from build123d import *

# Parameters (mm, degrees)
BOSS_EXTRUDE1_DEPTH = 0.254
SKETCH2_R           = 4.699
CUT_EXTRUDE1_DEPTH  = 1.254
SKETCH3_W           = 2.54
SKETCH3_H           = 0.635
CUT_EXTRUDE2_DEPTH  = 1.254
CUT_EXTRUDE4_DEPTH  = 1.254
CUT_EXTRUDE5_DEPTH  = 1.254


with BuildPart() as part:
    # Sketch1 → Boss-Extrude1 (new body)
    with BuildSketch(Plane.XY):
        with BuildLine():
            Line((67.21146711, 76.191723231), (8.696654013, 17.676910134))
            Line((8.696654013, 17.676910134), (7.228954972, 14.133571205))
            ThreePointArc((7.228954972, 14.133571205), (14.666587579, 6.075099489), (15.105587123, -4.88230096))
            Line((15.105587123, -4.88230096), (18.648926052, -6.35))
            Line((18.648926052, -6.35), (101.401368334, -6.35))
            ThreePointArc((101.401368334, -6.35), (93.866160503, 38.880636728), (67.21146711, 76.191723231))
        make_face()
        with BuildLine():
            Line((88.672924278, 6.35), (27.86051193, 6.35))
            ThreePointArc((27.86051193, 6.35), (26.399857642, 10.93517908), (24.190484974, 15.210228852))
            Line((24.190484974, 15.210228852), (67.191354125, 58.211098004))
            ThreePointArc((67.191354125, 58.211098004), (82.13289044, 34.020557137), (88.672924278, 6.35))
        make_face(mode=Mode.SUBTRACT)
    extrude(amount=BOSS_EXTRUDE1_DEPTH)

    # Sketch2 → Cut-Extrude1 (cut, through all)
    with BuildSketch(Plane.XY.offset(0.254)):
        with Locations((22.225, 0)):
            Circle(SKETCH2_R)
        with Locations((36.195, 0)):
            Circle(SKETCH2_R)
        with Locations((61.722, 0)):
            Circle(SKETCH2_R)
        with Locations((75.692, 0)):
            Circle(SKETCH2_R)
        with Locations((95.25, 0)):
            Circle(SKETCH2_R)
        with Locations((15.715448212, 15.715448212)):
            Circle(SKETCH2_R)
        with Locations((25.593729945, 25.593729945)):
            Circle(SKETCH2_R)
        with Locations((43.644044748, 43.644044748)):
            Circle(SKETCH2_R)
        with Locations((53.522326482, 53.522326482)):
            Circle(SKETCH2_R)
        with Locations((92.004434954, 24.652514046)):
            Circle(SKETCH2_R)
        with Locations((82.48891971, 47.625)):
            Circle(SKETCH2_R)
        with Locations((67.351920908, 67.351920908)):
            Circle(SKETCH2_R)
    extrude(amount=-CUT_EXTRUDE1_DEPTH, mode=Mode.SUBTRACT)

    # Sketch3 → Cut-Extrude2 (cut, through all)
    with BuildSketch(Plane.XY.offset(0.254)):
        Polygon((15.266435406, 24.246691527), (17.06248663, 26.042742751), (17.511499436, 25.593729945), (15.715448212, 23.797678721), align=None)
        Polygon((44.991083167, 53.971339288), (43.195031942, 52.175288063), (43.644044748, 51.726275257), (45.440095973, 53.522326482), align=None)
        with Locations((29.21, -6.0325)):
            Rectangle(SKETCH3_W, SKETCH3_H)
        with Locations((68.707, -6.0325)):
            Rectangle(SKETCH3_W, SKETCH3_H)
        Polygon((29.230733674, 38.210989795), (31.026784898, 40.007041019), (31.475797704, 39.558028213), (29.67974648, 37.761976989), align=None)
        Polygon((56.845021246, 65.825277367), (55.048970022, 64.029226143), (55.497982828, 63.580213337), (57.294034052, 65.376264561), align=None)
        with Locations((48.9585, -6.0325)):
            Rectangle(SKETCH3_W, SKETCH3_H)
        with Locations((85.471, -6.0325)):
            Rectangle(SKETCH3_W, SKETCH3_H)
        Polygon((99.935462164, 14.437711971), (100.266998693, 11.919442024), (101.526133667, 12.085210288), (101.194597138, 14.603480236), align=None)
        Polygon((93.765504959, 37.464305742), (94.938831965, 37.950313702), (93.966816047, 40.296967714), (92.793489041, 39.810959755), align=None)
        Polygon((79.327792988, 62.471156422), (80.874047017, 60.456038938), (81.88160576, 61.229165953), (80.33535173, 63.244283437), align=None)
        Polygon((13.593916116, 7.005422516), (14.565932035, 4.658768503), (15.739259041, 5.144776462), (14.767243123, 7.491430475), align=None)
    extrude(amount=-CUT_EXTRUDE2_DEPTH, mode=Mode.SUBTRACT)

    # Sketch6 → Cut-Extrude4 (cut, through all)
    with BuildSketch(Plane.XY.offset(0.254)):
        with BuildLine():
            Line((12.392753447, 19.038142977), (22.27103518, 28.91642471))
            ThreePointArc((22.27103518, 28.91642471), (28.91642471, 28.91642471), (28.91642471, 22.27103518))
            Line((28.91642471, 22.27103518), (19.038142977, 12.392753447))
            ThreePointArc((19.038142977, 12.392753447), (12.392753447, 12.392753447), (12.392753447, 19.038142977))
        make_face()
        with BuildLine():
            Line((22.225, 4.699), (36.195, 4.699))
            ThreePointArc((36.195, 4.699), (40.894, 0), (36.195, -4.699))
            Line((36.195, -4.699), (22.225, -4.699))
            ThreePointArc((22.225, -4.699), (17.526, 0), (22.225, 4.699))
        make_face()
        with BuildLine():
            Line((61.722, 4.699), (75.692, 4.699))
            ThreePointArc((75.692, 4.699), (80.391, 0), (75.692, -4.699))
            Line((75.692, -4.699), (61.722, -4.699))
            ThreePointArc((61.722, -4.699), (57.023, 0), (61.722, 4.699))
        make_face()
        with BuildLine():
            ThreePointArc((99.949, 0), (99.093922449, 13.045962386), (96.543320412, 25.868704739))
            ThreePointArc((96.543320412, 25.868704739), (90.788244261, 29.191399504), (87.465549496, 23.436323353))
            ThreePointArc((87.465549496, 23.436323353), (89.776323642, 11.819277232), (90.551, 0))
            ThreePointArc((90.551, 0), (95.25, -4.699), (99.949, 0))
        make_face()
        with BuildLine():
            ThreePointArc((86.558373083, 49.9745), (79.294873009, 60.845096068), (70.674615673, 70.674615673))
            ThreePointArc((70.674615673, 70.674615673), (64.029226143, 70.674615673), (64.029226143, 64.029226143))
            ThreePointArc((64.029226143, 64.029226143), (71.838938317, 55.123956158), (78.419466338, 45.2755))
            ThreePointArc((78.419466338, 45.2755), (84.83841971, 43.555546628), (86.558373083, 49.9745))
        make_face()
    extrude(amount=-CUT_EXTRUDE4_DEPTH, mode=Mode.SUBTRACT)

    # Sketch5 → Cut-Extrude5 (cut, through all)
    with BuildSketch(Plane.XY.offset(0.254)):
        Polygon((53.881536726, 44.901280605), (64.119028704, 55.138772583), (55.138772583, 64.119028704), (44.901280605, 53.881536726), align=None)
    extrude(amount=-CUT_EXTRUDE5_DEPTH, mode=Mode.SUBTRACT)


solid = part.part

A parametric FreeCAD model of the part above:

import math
import FreeCAD as App
import Part
import Sketcher
from FreeCAD import Vector
Q = App.Units.Quantity

doc = App.newDocument("Part")
params = doc.addObject("Spreadsheet::Sheet", "Params")
for row, (alias, value) in enumerate([
    ("sketch1_radius", "4 in"),
    ("sketch1_radius2", "3.5 in"),
    ("sketch1_radius3", "0.625 in"),
    ("sketch1_radius4", "1.125 in"),
    ("pad1_length", "0.01 in"),
    ("sketch2_diameter", "0.37 in"),
    ("sketch3_width", "0.1 in"),
    ("sketch3_length", "0.1 in"),
    ("sketch3_length2", "0.05 in"),
    ("sketch3_height", "0.025 in"),
    ("sketch3_length3", "0.025 in"),
    ("sketch4_radius", "0.185 in"),
    ("sketch4_radius2", "3.935 in"),
    ("sketch4_width", "0.55 in"),
    ("sketch4_length", "0.55 in"),
    ("sketch5_length", "0.5 in"),
    ("sketch5_length2", "0.57 in"),
], start=1):
    params.set(f"A{row}", alias)
    params.set(f"B{row}", "=" + value)
    params.setAlias(f"B{row}", alias)

body = doc.addObject("PartDesign::Body", "Body")

sketch1 = body.newObject("Sketcher::SketchObject", "Sketch")
sketch1.AttachmentSupport = (doc.getObject("XY_Plane"), [""])
sketch1.MapMode = "FlatFace"
sketch1.addGeometry([
    Part.LineSegment(Vector(67.2, 76.2, 0), Vector(8.7, 17.7, 0)),
    Part.LineSegment(Vector(8.7, 17.7, 0), Vector(7.2, 14.1, 0)),
    Part.ArcOfCircle(Part.Circle(Vector(0, 0, 0), Vector(0, 0, 1), 15.9), math.radians(-18), math.radians(63)),
    Part.LineSegment(Vector(15.1, -4.9, 0), Vector(18.6, -6.3, 0)),
    Part.LineSegment(Vector(18.6, -6.3, 0), Vector(101.4, -6.3, 0)),
    Part.ArcOfCircle(Part.Circle(Vector(0, 0, 0), Vector(0, 0, 1), 101.6), math.radians(-4), math.radians(49)),
    Part.ArcOfCircle(Part.Circle(Vector(0, 0, 0), Vector(0, 0, 1), 88.9), math.radians(4), math.radians(41)),
    Part.LineSegment(Vector(88.7, 6.3, 0), Vector(27.9, 6.3, 0)),
    Part.ArcOfCircle(Part.Circle(Vector(0, 0, 0), Vector(0, 0, 1), 28.6), math.radians(12.84), math.radians(32.16)),
    Part.LineSegment(Vector(24.2, 15.2, 0), Vector(67.2, 58.2, 0)),
], False)
sketch1.addConstraint([
    Sketcher.Constraint("Coincident", 0, 2, 1, 1),
    Sketcher.Constraint("Coincident", 1, 2, 2, 2),
    Sketcher.Constraint("Coincident", 2, 1, 3, 1),
    Sketcher.Constraint("Coincident", 3, 2, 4, 1),
    Sketcher.Constraint("Coincident", 4, 2, 5, 1),
    Sketcher.Constraint("Coincident", 5, 2, 0, 1),
    Sketcher.Constraint("Coincident", 6, 1, 7, 1),
    Sketcher.Constraint("Coincident", 7, 2, 8, 1),
    Sketcher.Constraint("Coincident", 8, 2, 9, 1),
    Sketcher.Constraint("Coincident", 9, 2, 6, 2),
    Sketcher.Constraint("Horizontal", 4),
    Sketcher.Constraint("Horizontal", 7),
    Sketcher.Constraint("Coincident", 2, 3, -1, 1),
    Sketcher.Constraint("Coincident", 5, 3, -1, 1),
    Sketcher.Constraint("Coincident", 6, 3, -1, 1),
    Sketcher.Constraint("Coincident", 8, 3, -1, 1),
    Sketcher.Constraint("Perpendicular", 1, 3),
    Sketcher.Constraint("Parallel", 0, 9),
    Sketcher.Constraint("Equal", 1, 3),
    Sketcher.Constraint("Radius", 5, Q("4 in")),
    Sketcher.Constraint("Radius", 6, Q("3.5 in")),
    Sketcher.Constraint("Angle", 0, Q("-135 deg")),
    Sketcher.Constraint("Radius", 2, Q("0.625 in")),
    Sketcher.Constraint("Radius", 8, Q("1.125 in")),
    Sketcher.Constraint("Angle", 1, Q("-112.5 deg")),
    Sketcher.Constraint("DistanceY", 4, 2, 6, 1, Q("0.5 in")),
    Sketcher.Constraint("DistanceY", 3, 2, -1, 1, Q("0.25 in")),
    Sketcher.Constraint("DistanceY", 2, 1, -1, 1, Q("4.882301 mm")),
    Sketcher.Constraint("DistanceY", -1, 1, 9, 2, Q("58.211098 mm")),
    Sketcher.Constraint("DistanceX", 5, 2, 4, 2, Q("34.189901 mm")),
])
sketch1.setExpression("Constraints[19]", "Params.sketch1_radius")
sketch1.setExpression("Constraints[20]", "Params.sketch1_radius2")
sketch1.setExpression("Constraints[22]", "Params.sketch1_radius3")
sketch1.setExpression("Constraints[23]", "Params.sketch1_radius4")
pad1 = body.newObject("PartDesign::Pad", "Pad")
pad1.Profile = sketch1
pad1.setExpression("Length", "Params.pad1_length")

sketch2 = body.newObject("Sketcher::SketchObject", "Sketch001")
sketch2.AttachmentSupport = (doc.getObject("XY_Plane"), [""])
sketch2.MapMode = "FlatFace"
sketch2.AttachmentOffset = App.Placement(Vector(0, 0, 0.01 * 25.4), App.Rotation())
sketch2.addGeometry([
    Part.Circle(Vector(22.2, 0, 0), Vector(0, 0, 1), 4.7),
    Part.Circle(Vector(36.2, 0, 0), Vector(0, 0, 1), 4.7),
    Part.Circle(Vector(61.7, 0, 0), Vector(0, 0, 1), 4.7),
    Part.Circle(Vector(75.7, 0, 0), Vector(0, 0, 1), 4.7),
    Part.Circle(Vector(95.2, 0, 0), Vector(0, 0, 1), 4.7),
    Part.Circle(Vector(15.7, 15.7, 0), Vector(0, 0, 1), 4.7),
    Part.Circle(Vector(25.6, 25.6, 0), Vector(0, 0, 1), 4.7),
    Part.Circle(Vector(43.6, 43.6, 0), Vector(0, 0, 1), 4.7),
    Part.Circle(Vector(53.5, 53.5, 0), Vector(0, 0, 1), 4.7),
    Part.Circle(Vector(92, 24.7, 0), Vector(0, 0, 1), 4.7),
    Part.Circle(Vector(82.5, 47.6, 0), Vector(0, 0, 1), 4.7),
    Part.Circle(Vector(67.4, 67.4, 0), Vector(0, 0, 1), 4.7),
], False)
sketch2.addConstraint([
    Sketcher.Constraint("Equal", 0, 1),
    Sketcher.Constraint("Equal", 1, 2),
    Sketcher.Constraint("Equal", 2, 3),
    Sketcher.Constraint("Equal", 3, 4),
    Sketcher.Constraint("Equal", 4, 5),
    Sketcher.Constraint("Equal", 5, 6),
    Sketcher.Constraint("Equal", 6, 7),
    Sketcher.Constraint("Equal", 7, 8),
    Sketcher.Constraint("Equal", 8, 9),
    Sketcher.Constraint("Equal", 9, 10),
    Sketcher.Constraint("Equal", 10, 11),
    Sketcher.Constraint("PointOnObject", 0, 3, -1),
    Sketcher.Constraint("PointOnObject", 1, 3, -1),
    Sketcher.Constraint("PointOnObject", 2, 3, -1),
    Sketcher.Constraint("PointOnObject", 3, 3, -1),
    Sketcher.Constraint("PointOnObject", 4, 3, -1),
    Sketcher.Constraint("Diameter", 0, Q("0.37 in")),
    Sketcher.Constraint("DistanceX", -1, 1, 2, 3, Q("2.43 in")),
    Sketcher.Constraint("DistanceX", -1, 1, 3, 3, Q("2.98 in")),
    Sketcher.Constraint("DistanceX", -1, 1, 4, 3, Q("3.75 in")),
    Sketcher.Constraint("DistanceX", 0, 3, 1, 3, Q("0.55 in")),
    Sketcher.Constraint("DistanceX", -1, 1, 0, 3, Q("0.875 in")),
    Sketcher.Constraint("DistanceY", -1, 1, 10, 3, Q("1.875 in")),
    Sketcher.Constraint("DistanceX", 11, 3, 10, 3, Q("15.136999 mm")),
    Sketcher.Constraint("DistanceX", -1, 1, 5, 3, Q("15.715448 mm")),
    Sketcher.Constraint("DistanceY", -1, 1, 5, 3, Q("15.715448 mm")),
    Sketcher.Constraint("DistanceX", -1, 1, 6, 3, Q("25.59373 mm")),
    Sketcher.Constraint("DistanceY", -1, 1, 6, 3, Q("25.59373 mm")),
    Sketcher.Constraint("DistanceX", -1, 1, 10, 3, Q("82.48892 mm")),
    Sketcher.Constraint("DistanceY", -1, 1, 11, 3, Q("67.351921 mm")),
    Sketcher.Constraint("DistanceX", 7, 3, 8, 3, Q("9.878282 mm")),
    Sketcher.Constraint("DistanceY", 7, 3, 8, 3, Q("9.878282 mm")),
    Sketcher.Constraint("DistanceX", 5, 3, 8, 3, Q("37.806878 mm")),
    Sketcher.Constraint("DistanceY", 5, 3, 8, 3, Q("37.806878 mm")),
    Sketcher.Constraint("DistanceX", 8, 3, 9, 3, Q("38.482108 mm")),
    Sketcher.Constraint("DistanceY", 9, 3, 7, 3, Q("18.991531 mm")),
])
sketch2.setExpression("Constraints[16]", "Params.sketch2_diameter")
pocket1 = body.newObject("PartDesign::Pocket", "Pocket")
pocket1.Profile = sketch2
pocket1.Type = "ThroughAll"

sketch3 = body.newObject("Sketcher::SketchObject", "Sketch002")
sketch3.AttachmentSupport = (doc.getObject("XY_Plane"), [""])
sketch3.MapMode = "FlatFace"
sketch3.AttachmentOffset = App.Placement(Vector(0, 0, 0.01 * 25.4), App.Rotation())
sketch3.addGeometry([
    Part.LineSegment(Vector(17.1, 26, 0), Vector(15.3, 24.2, 0)),
    Part.LineSegment(Vector(15.3, 24.2, 0), Vector(15.7, 23.8, 0)),
    Part.LineSegment(Vector(15.7, 23.8, 0), Vector(17.5, 25.6, 0)),
    Part.LineSegment(Vector(17.5, 25.6, 0), Vector(17.1, 26, 0)),
    Part.LineSegment(Vector(45, 54, 0), Vector(43.2, 52.2, 0)),
    Part.LineSegment(Vector(43.2, 52.2, 0), Vector(43.6, 51.7, 0)),
    Part.LineSegment(Vector(43.6, 51.7, 0), Vector(45.4, 53.5, 0)),
    Part.LineSegment(Vector(45.4, 53.5, 0), Vector(45, 54, 0)),
    Part.LineSegment(Vector(27.9, -5.7, 0), Vector(27.9, -6.3, 0)),
    Part.LineSegment(Vector(27.9, -6.3, 0), Vector(30.5, -6.3, 0)),
    Part.LineSegment(Vector(30.5, -6.3, 0), Vector(30.5, -5.7, 0)),
    Part.LineSegment(Vector(30.5, -5.7, 0), Vector(27.9, -5.7, 0)),
    Part.LineSegment(Vector(67.4, -5.7, 0), Vector(67.4, -6.3, 0)),
    Part.LineSegment(Vector(67.4, -6.3, 0), Vector(70, -6.3, 0)),
    Part.LineSegment(Vector(70, -6.3, 0), Vector(70, -5.7, 0)),
    Part.LineSegment(Vector(70, -5.7, 0), Vector(67.4, -5.7, 0)),
    Part.LineSegment(Vector(31, 40, 0), Vector(29.2, 38.2, 0)),
    Part.LineSegment(Vector(29.2, 38.2, 0), Vector(29.7, 37.8, 0)),
    Part.LineSegment(Vector(29.7, 37.8, 0), Vector(31.5, 39.6, 0)),
    Part.LineSegment(Vector(31.5, 39.6, 0), Vector(31, 40, 0)),
    Part.LineSegment(Vector(56.8, 65.8, 0), Vector(55, 64, 0)),
    Part.LineSegment(Vector(55, 64, 0), Vector(55.5, 63.6, 0)),
    Part.LineSegment(Vector(55.5, 63.6, 0), Vector(57.3, 65.4, 0)),
    Part.LineSegment(Vector(57.3, 65.4, 0), Vector(56.8, 65.8, 0)),
    Part.LineSegment(Vector(47.7, -5.7, 0), Vector(47.7, -6.3, 0)),
    Part.LineSegment(Vector(47.7, -6.3, 0), Vector(50.2, -6.3, 0)),
    Part.LineSegment(Vector(50.2, -6.3, 0), Vector(50.2, -5.7, 0)),
    Part.LineSegment(Vector(50.2, -5.7, 0), Vector(47.7, -5.7, 0)),
    Part.LineSegment(Vector(84.2, -5.7, 0), Vector(84.2, -6.3, 0)),
    Part.LineSegment(Vector(84.2, -6.3, 0), Vector(86.7, -6.3, 0)),
    Part.LineSegment(Vector(86.7, -6.3, 0), Vector(86.7, -5.7, 0)),
    Part.LineSegment(Vector(86.7, -5.7, 0), Vector(84.2, -5.7, 0)),
    Part.LineSegment(Vector(99.9, 14.4, 0), Vector(100.3, 11.9, 0)),
    Part.LineSegment(Vector(100.3, 11.9, 0), Vector(101.5, 12.1, 0)),
    Part.LineSegment(Vector(101.5, 12.1, 0), Vector(101.2, 14.6, 0)),
    Part.LineSegment(Vector(101.2, 14.6, 0), Vector(99.9, 14.4, 0)),
    Part.LineSegment(Vector(93.8, 37.5, 0), Vector(94.9, 38, 0)),
    Part.LineSegment(Vector(94.9, 38, 0), Vector(94, 40.3, 0)),
    Part.LineSegment(Vector(94, 40.3, 0), Vector(92.8, 39.8, 0)),
    Part.LineSegment(Vector(92.8, 39.8, 0), Vector(93.8, 37.5, 0)),
    Part.LineSegment(Vector(79.3, 62.5, 0), Vector(80.9, 60.5, 0)),
    Part.LineSegment(Vector(80.9, 60.5, 0), Vector(81.9, 61.2, 0)),
    Part.LineSegment(Vector(81.9, 61.2, 0), Vector(80.3, 63.2, 0)),
    Part.LineSegment(Vector(80.3, 63.2, 0), Vector(79.3, 62.5, 0)),
    Part.LineSegment(Vector(13.6, 7, 0), Vector(14.6, 4.7, 0)),
    Part.LineSegment(Vector(14.6, 4.7, 0), Vector(15.7, 5.1, 0)),
    Part.LineSegment(Vector(15.7, 5.1, 0), Vector(14.8, 7.5, 0)),
    Part.LineSegment(Vector(14.8, 7.5, 0), Vector(13.6, 7, 0)),
], False)
sketch3.addConstraint([
    Sketcher.Constraint("Coincident", 0, 2, 1, 1),
    Sketcher.Constraint("Coincident", 1, 2, 2, 1),
    Sketcher.Constraint("Coincident", 2, 2, 3, 1),
    Sketcher.Constraint("Coincident", 3, 2, 0, 1),
    Sketcher.Constraint("Coincident", 4, 2, 5, 1),
    Sketcher.Constraint("Coincident", 5, 2, 6, 1),
    Sketcher.Constraint("Coincident", 6, 2, 7, 1),
    Sketcher.Constraint("Coincident", 7, 2, 4, 1),
    Sketcher.Constraint("Coincident", 8, 2, 9, 1),
    Sketcher.Constraint("Coincident", 9, 2, 10, 1),
    Sketcher.Constraint("Coincident", 10, 2, 11, 1),
    Sketcher.Constraint("Coincident", 11, 2, 8, 1),
    Sketcher.Constraint("Coincident", 12, 2, 13, 1),
    Sketcher.Constraint("Coincident", 13, 2, 14, 1),
    Sketcher.Constraint("Coincident", 14, 2, 15, 1),
    Sketcher.Constraint("Coincident", 15, 2, 12, 1),
    Sketcher.Constraint("Coincident", 16, 2, 17, 1),
    Sketcher.Constraint("Coincident", 17, 2, 18, 1),
    Sketcher.Constraint("Coincident", 18, 2, 19, 1),
    Sketcher.Constraint("Coincident", 19, 2, 16, 1),
    Sketcher.Constraint("Coincident", 20, 2, 21, 1),
    Sketcher.Constraint("Coincident", 21, 2, 22, 1),
    Sketcher.Constraint("Coincident", 22, 2, 23, 1),
    Sketcher.Constraint("Coincident", 23, 2, 20, 1),
    Sketcher.Constraint("Coincident", 24, 2, 25, 1),
    Sketcher.Constraint("Coincident", 25, 2, 26, 1),
    Sketcher.Constraint("Coincident", 26, 2, 27, 1),
    Sketcher.Constraint("Coincident", 27, 2, 24, 1),
    Sketcher.Constraint("Coincident", 28, 2, 29, 1),
    Sketcher.Constraint("Coincident", 29, 2, 30, 1),
    Sketcher.Constraint("Coincident", 30, 2, 31, 1),
    Sketcher.Constraint("Coincident", 31, 2, 28, 1),
    Sketcher.Constraint("Coincident", 32, 2, 33, 1),
    Sketcher.Constraint("Coincident", 33, 2, 34, 1),
    Sketcher.Constraint("Coincident", 34, 2, 35, 1),
    Sketcher.Constraint("Coincident", 35, 2, 32, 1),
    Sketcher.Constraint("Coincident", 36, 2, 37, 1),
    Sketcher.Constraint("Coincident", 37, 2, 38, 1),
    Sketcher.Constraint("Coincident", 38, 2, 39, 1),
    Sketcher.Constraint("Coincident", 39, 2, 36, 1),
    Sketcher.Constraint("Coincident", 40, 2, 41, 1),
    Sketcher.Constraint("Coincident", 41, 2, 42, 1),
    Sketcher.Constraint("Coincident", 42, 2, 43, 1),
    Sketcher.Constraint("Coincident", 43, 2, 40, 1),
    Sketcher.Constraint("Coincident", 44, 2, 45, 1),
    Sketcher.Constraint("Coincident", 45, 2, 46, 1),
    Sketcher.Constraint("Coincident", 46, 2, 47, 1),
    Sketcher.Constraint("Coincident", 47, 2, 44, 1),
    Sketcher.Constraint("Vertical", 8),
    Sketcher.Constraint("Horizontal", 9),
    Sketcher.Constraint("Vertical", 10),
    Sketcher.Constraint("Horizontal", 11),
    Sketcher.Constraint("Vertical", 12),
    Sketcher.Constraint("Horizontal", 13),
    Sketcher.Constraint("Vertical", 14),
    Sketcher.Constraint("Horizontal", 15),
    Sketcher.Constraint("Vertical", 24),
    Sketcher.Constraint("Horizontal", 25),
    Sketcher.Constraint("Vertical", 26),
    Sketcher.Constraint("Horizontal", 27),
    Sketcher.Constraint("Vertical", 28),
    Sketcher.Constraint("Horizontal", 29),
    Sketcher.Constraint("Vertical", 30),
    Sketcher.Constraint("Horizontal", 31),
    Sketcher.Constraint("Perpendicular", 0, 1),
    Sketcher.Constraint("Perpendicular", 1, 2),
    Sketcher.Constraint("Perpendicular", 2, 3),
    Sketcher.Constraint("Perpendicular", 3, 4),
    Sketcher.Constraint("Perpendicular", 4, 5),
    Sketcher.Constraint("Perpendicular", 5, 6),
    Sketcher.Constraint("Perpendicular", 6, 7),
    Sketcher.Constraint("Perpendicular", 7, 16),
    Sketcher.Constraint("Perpendicular", 16, 17),
    Sketcher.Constraint("Perpendicular", 17, 18),
    Sketcher.Constraint("Perpendicular", 18, 19),
    Sketcher.Constraint("Perpendicular", 19, 20),
    Sketcher.Constraint("Perpendicular", 20, 21),
    Sketcher.Constraint("Perpendicular", 21, 22),
    Sketcher.Constraint("Perpendicular", 22, 23),
    Sketcher.Constraint("Perpendicular", 32, 33),
    Sketcher.Constraint("Perpendicular", 33, 34),
    Sketcher.Constraint("Perpendicular", 34, 35),
    Sketcher.Constraint("Perpendicular", 36, 37),
    Sketcher.Constraint("Perpendicular", 37, 38),
    Sketcher.Constraint("Perpendicular", 38, 39),
    Sketcher.Constraint("Perpendicular", 40, 41),
    Sketcher.Constraint("Perpendicular", 41, 42),
    Sketcher.Constraint("Perpendicular", 42, 43),
    Sketcher.Constraint("Parallel", 39, 44),
    Sketcher.Constraint("Perpendicular", 44, 45),
    Sketcher.Constraint("Perpendicular", 45, 46),
    Sketcher.Constraint("Perpendicular", 46, 47),
    Sketcher.Constraint("Horizontal", 9, 2, 12, 2),
    Sketcher.Constraint("Horizontal", 11, 2, 14, 2),
    Sketcher.Constraint("Horizontal", 13, 2, 24, 2),
    Sketcher.Constraint("Horizontal", 15, 2, 26, 2),
    Sketcher.Constraint("Horizontal", 25, 2, 28, 2),
    Sketcher.Constraint("Horizontal", 27, 2, 30, 2),
    Sketcher.Constraint("Equal", 11, 13),
    Sketcher.Constraint("Equal", 15, 25),
    Sketcher.Constraint("Equal", 27, 29),
    Sketcher.Constraint("Equal", 2, 4),
    Sketcher.Constraint("Equal", 3, 5),
    Sketcher.Constraint("Equal", 6, 16),
    Sketcher.Constraint("Equal", 7, 17),
    Sketcher.Constraint("Equal", 18, 20),
    Sketcher.Constraint("Equal", 19, 21),
    Sketcher.Constraint("Equal", 22, 32),
    Sketcher.Constraint("Equal", 35, 36),
    Sketcher.Constraint("Equal", 34, 37),
    Sketcher.Constraint("Equal", 39, 40),
    Sketcher.Constraint("Equal", 38, 41),
    Sketcher.Constraint("Equal", 42, 44),
    Sketcher.Constraint("Equal", 43, 45),
    Sketcher.Constraint("DistanceX", 9, 1, 9, 2, Q("0.1 in")),
    Sketcher.Constraint("Angle", 0, Q("-135 deg")),
    Sketcher.Constraint("Distance", 0, Q("0.1 in")),
    Sketcher.Constraint("DistanceX", -1, 1, 8, 2, Q("1.1 in")),
    Sketcher.Constraint("Angle", 32, Q("-82.5 deg")),
    Sketcher.Constraint("Angle", 36, Q("22.5 deg")),
    Sketcher.Constraint("Angle", 40, Q("-52.5 deg")),
    Sketcher.Constraint("Distance", 33, Q("0.05 in")),
    Sketcher.Constraint("DistanceY", 8, 2, 8, 1, Q("0.025 in")),
    Sketcher.Constraint("DistanceY", 8, 2, -1, 1, Q("0.25 in")),
    Sketcher.Constraint("DistanceX", 13, 2, 28, 2, Q("0.56 in")),
    Sketcher.Constraint("Distance", 1, Q("0.025 in")),
    Sketcher.Constraint("DistanceX", -1, 1, 12, 2, Q("2.655 in")),
    Sketcher.Constraint("DistanceX", -1, 1, 24, 2, Q("1.8775 in")),
    Sketcher.Constraint("DistanceX", -1, 1, 2, 2, Q("17.511499 mm")),
    Sketcher.Constraint("DistanceX", -1, 1, 32, 2, Q("100.266999 mm")),
    Sketcher.Constraint("DistanceX", 16, 2, 4, 2, Q("13.964298 mm")),
    Sketcher.Constraint("DistanceY", 16, 2, 4, 2, Q("13.964298 mm")),
    Sketcher.Constraint("DistanceX", 0, 2, 16, 2, Q("13.964298 mm")),
    Sketcher.Constraint("DistanceY", 0, 2, 16, 2, Q("13.964298 mm")),
    Sketcher.Constraint("DistanceY", 6, 2, 20, 2, Q("10.5069 mm")),
    Sketcher.Constraint("DistanceX", 7, 2, 21, 2, Q("10.5069 mm")),
    Sketcher.Constraint("DistanceY", 35, 2, 36, 2, Q("23.512602 mm")),
    Sketcher.Constraint("DistanceX", 36, 2, 33, 2, Q("6.587302 mm")),
    Sketcher.Constraint("DistanceY", 37, 2, 41, 2, Q("20.932198 mm")),
    Sketcher.Constraint("DistanceY", 41, 2, 22, 2, Q("4.147099 mm")),
    Sketcher.Constraint("DistanceY", 46, 2, 2, 2, Q("18.102299 mm")),
    Sketcher.Constraint("DistanceY", -1, 1, 0, 2, Q("24.246692 mm")),
    Sketcher.Constraint("DistanceX", -1, 1, 42, 2, Q("80.335352 mm")),
    Sketcher.Constraint("DistanceX", -1, 1, 45, 2, Q("15.739259 mm")),
])
sketch3.setExpression("Constraints[114]", "Params.sketch3_width")
sketch3.setExpression("Constraints[116]", "Params.sketch3_length")
sketch3.setExpression("Constraints[121]", "Params.sketch3_length2")
sketch3.setExpression("Constraints[122]", "Params.sketch3_height")
sketch3.setExpression("Constraints[125]", "Params.sketch3_length3")
pocket2 = body.newObject("PartDesign::Pocket", "Pocket001")
pocket2.Profile = sketch3
pocket2.Type = "ThroughAll"

sketch4 = body.newObject("Sketcher::SketchObject", "Sketch003")
sketch4.AttachmentSupport = (doc.getObject("XY_Plane"), [""])
sketch4.MapMode = "FlatFace"
sketch4.AttachmentOffset = App.Placement(Vector(0, 0, 0.01 * 25.4), App.Rotation())
sketch4.addGeometry([
    Part.LineSegment(Vector(22.3, 28.9, 0), Vector(12.4, 19, 0)),
    Part.ArcOfCircle(Part.Circle(Vector(15.7, 15.7, 0), Vector(0, 0, 1), 4.7), math.radians(135), math.radians(315)),
    Part.LineSegment(Vector(19, 12.4, 0), Vector(28.9, 22.3, 0)),
    Part.ArcOfCircle(Part.Circle(Vector(25.6, 25.6, 0), Vector(0, 0, 1), 4.7), math.radians(-45), math.radians(135)),
    Part.LineSegment(Vector(36.2, 4.7, 0), Vector(22.2, 4.7, 0)),
    Part.ArcOfCircle(Part.Circle(Vector(22.2, 0, 0), Vector(0, 0, 1), 4.7), math.radians(90), math.radians(270)),
    Part.LineSegment(Vector(22.2, -4.7, 0), Vector(36.2, -4.7, 0)),
    Part.ArcOfCircle(Part.Circle(Vector(36.2, 0, 0), Vector(0, 0, 1), 4.7), math.radians(-90), math.radians(90)),
    Part.LineSegment(Vector(75.7, 4.7, 0), Vector(61.7, 4.7, 0)),
    Part.ArcOfCircle(Part.Circle(Vector(61.7, 0, 0), Vector(0, 0, 1), 4.7), math.radians(90), math.radians(270)),
    Part.LineSegment(Vector(61.7, -4.7, 0), Vector(75.7, -4.7, 0)),
    Part.ArcOfCircle(Part.Circle(Vector(75.7, 0, 0), Vector(0, 0, 1), 4.7), math.radians(-90), math.radians(90)),
    Part.ArcOfCircle(Part.Circle(Vector(0, 0, 0), Vector(0, 0, 1), 99.9), math.radians(0), math.radians(15)),
    Part.ArcOfCircle(Part.Circle(Vector(92, 24.7, 0), Vector(0, 0, 1), 4.7), math.radians(15), math.radians(195)),
    Part.ArcOfCircle(Part.Circle(Vector(0, 0, 0), Vector(0, 0, 1), 90.6), math.radians(0), math.radians(15)),
    Part.ArcOfCircle(Part.Circle(Vector(95.2, 0, 0), Vector(0, 0, 1), 4.7), math.radians(180), math.radians(360)),
    Part.ArcOfCircle(Part.Circle(Vector(0, 0, 0), Vector(0, 0, 1), 99.9), math.radians(30), math.radians(45)),
    Part.ArcOfCircle(Part.Circle(Vector(67.4, 67.4, 0), Vector(0, 0, 1), 4.7), math.radians(45), math.radians(225)),
    Part.ArcOfCircle(Part.Circle(Vector(0, 0, 0), Vector(0, 0, 1), 90.6), math.radians(30), math.radians(45)),
    Part.ArcOfCircle(Part.Circle(Vector(82.5, 47.6, 0), Vector(0, 0, 1), 4.7), math.radians(-150), math.radians(30)),
], False)
sketch4.addConstraint([
    Sketcher.Constraint("Tangent", 0, 2, 1, 1),
    Sketcher.Constraint("Tangent", 1, 2, 2, 1),
    Sketcher.Constraint("Tangent", 2, 2, 3, 1),
    Sketcher.Constraint("Tangent", 3, 2, 0, 1),
    Sketcher.Constraint("Tangent", 4, 2, 5, 1),
    Sketcher.Constraint("Tangent", 5, 2, 6, 1),
    Sketcher.Constraint("Tangent", 6, 2, 7, 1),
    Sketcher.Constraint("Tangent", 7, 2, 4, 1),
    Sketcher.Constraint("Tangent", 8, 2, 9, 1),
    Sketcher.Constraint("Tangent", 9, 2, 10, 1),
    Sketcher.Constraint("Tangent", 10, 2, 11, 1),
    Sketcher.Constraint("Tangent", 11, 2, 8, 1),
    Sketcher.Constraint("Tangent", 12, 2, 13, 1),
    Sketcher.Constraint("Tangent", 13, 2, 14, 2),
    Sketcher.Constraint("Tangent", 14, 1, 15, 1),
    Sketcher.Constraint("Tangent", 15, 2, 12, 1),
    Sketcher.Constraint("Tangent", 16, 2, 17, 1),
    Sketcher.Constraint("Tangent", 17, 2, 18, 2),
    Sketcher.Constraint("Tangent", 18, 1, 19, 1),
    Sketcher.Constraint("Tangent", 19, 2, 16, 1),
    Sketcher.Constraint("Horizontal", 4),
    Sketcher.Constraint("Horizontal", 6),
    Sketcher.Constraint("Horizontal", 8),
    Sketcher.Constraint("Horizontal", 10),
    Sketcher.Constraint("Coincident", 12, 3, -1, 1),
    Sketcher.Constraint("Coincident", 14, 3, -1, 1),
    Sketcher.Constraint("Coincident", 16, 3, -1, 1),
    Sketcher.Constraint("Coincident", 18, 3, -1, 1),
    Sketcher.Constraint("Equal", 1, 3),
    Sketcher.Constraint("Equal", 3, 5),
    Sketcher.Constraint("Equal", 7, 9),
    Sketcher.Constraint("Equal", 11, 13),
    Sketcher.Constraint("Equal", 12, 16),
    Sketcher.Constraint("Equal", 15, 17),
    Sketcher.Constraint("PointOnObject", 5, 3, -1),
    Sketcher.Constraint("PointOnObject", 9, 3, -1),
    Sketcher.Constraint("PointOnObject", 15, 3, -1),
    Sketcher.Constraint("Equal", 6, 8),
    Sketcher.Constraint("Angle", 0, Q("-135 deg")),
    Sketcher.Constraint("Radius", 1, Q("0.185 in")),
    Sketcher.Constraint("Radius", 12, Q("3.935 in")),
    Sketcher.Constraint("DistanceX", 4, 2, 4, 1, Q("0.55 in")),
    Sketcher.Constraint("Distance", 0, Q("0.55 in")),
    Sketcher.Constraint("DistanceX", -1, 1, 9, 3, Q("2.43 in")),
    Sketcher.Constraint("DistanceX", -1, 1, 5, 3, Q("0.875 in")),
    Sketcher.Constraint("DistanceY", -1, 1, 19, 3, Q("1.875 in")),
    Sketcher.Constraint("DistanceX", 17, 3, 19, 3, Q("15.136999 mm")),
    Sketcher.Constraint("DistanceX", 19, 3, 12, 2, Q("14.054401 mm")),
    Sketcher.Constraint("DistanceX", -1, 1, 1, 3, Q("15.715448 mm")),
    Sketcher.Constraint("DistanceY", -1, 1, 1, 3, Q("15.715448 mm")),
])
sketch4.setExpression("Constraints[39]", "Params.sketch4_radius")
sketch4.setExpression("Constraints[40]", "Params.sketch4_radius2")
sketch4.setExpression("Constraints[41]", "Params.sketch4_width")
sketch4.setExpression("Constraints[42]", "Params.sketch4_length")
pocket3 = body.newObject("PartDesign::Pocket", "Pocket002")
pocket3.Profile = sketch4
pocket3.Type = "ThroughAll"

sketch5 = body.newObject("Sketcher::SketchObject", "Sketch004")
sketch5.AttachmentSupport = (doc.getObject("XY_Plane"), [""])
sketch5.MapMode = "FlatFace"
sketch5.AttachmentOffset = App.Placement(Vector(0, 0, 0.01 * 25.4), App.Rotation())
sketch5.addGeometry([
    Part.LineSegment(Vector(54, 45, 0), Vector(64, 55, 0)),
    Part.LineSegment(Vector(64, 55, 0), Vector(55, 64, 0)),
    Part.LineSegment(Vector(55, 64, 0), Vector(45, 54, 0)),
    Part.LineSegment(Vector(45, 54, 0), Vector(54, 45, 0)),
], False)
sketch5.addConstraint([
    Sketcher.Constraint("Coincident", 0, 2, 1, 1),
    Sketcher.Constraint("Coincident", 1, 2, 2, 1),
    Sketcher.Constraint("Coincident", 2, 2, 3, 1),
    Sketcher.Constraint("Coincident", 3, 2, 0, 1),
    Sketcher.Constraint("Perpendicular", 0, 1),
    Sketcher.Constraint("Perpendicular", 1, 2),
    Sketcher.Constraint("Perpendicular", 2, 3),
    Sketcher.Constraint("Angle", 0, Q("45 deg")),
    Sketcher.Constraint("Distance", 1, Q("0.5 in")),
    Sketcher.Constraint("Distance", 0, Q("0.57 in")),
    Sketcher.Constraint("DistanceX", -1, 1, 0, 2, Q("64.119029 mm")),
    Sketcher.Constraint("DistanceY", -1, 1, 1, 2, Q("64.119029 mm")),
])
sketch5.setExpression("Constraints[8]", "Params.sketch5_length")
sketch5.setExpression("Constraints[9]", "Params.sketch5_length2")
pocket4 = body.newObject("PartDesign::Pocket", "Pocket003")
pocket4.Profile = sketch5
pocket4.Type = "ThroughAll"

doc.recompute()
